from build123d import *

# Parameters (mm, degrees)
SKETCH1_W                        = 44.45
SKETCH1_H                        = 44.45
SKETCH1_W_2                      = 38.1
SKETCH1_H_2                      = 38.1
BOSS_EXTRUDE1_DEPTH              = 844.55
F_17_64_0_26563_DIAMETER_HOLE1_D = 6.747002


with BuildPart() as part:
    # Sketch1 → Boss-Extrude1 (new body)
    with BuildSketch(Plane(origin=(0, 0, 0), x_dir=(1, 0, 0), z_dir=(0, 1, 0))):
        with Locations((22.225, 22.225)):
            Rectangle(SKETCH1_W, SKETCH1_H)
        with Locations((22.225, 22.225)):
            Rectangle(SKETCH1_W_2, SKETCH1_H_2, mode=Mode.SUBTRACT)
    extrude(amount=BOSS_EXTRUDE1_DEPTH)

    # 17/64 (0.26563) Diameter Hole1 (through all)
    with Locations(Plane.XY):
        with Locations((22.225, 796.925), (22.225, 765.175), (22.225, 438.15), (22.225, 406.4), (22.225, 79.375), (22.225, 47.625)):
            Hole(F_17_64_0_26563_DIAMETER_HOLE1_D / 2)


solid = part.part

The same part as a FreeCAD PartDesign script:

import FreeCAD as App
import Part
import Sketcher
from FreeCAD import Vector
Q = App.Units.Quantity


def add_polygon(sketch, points):
    """Adds a closed chain of lines whose ends are joined by coincident constraints."""
    first, n = sketch.GeometryCount, len(points)
    for a, b in zip(points, points[1:] + points[:1]):
        sketch.addGeometry(Part.LineSegment(App.Vector(*a, 0), App.Vector(*b, 0)), False)
    for i in range(n):
        sketch.addConstraint(Sketcher.Constraint("Coincident", first + i, 2, first + (i + 1) % n, 1))

doc = App.newDocument("Part")
body = doc.addObject("PartDesign::Body", "Body")

# Sketch on XZ plane
sketch1 = body.newObject("Sketcher::SketchObject", "Sketch")
sketch1.AttachmentSupport = (doc.getObject("XZ_Plane"), [""])
sketch1.MapMode = "FlatFace"
add_polygon(sketch1, [(0, -44.45), (0, 0), (44.45, 0), (44.45, -44.45)])  # lines 0-3
add_polygon(sketch1, [(41.275, -3.175), (3.175, -3.175), (3.175, -41.275), (41.275, -41.275)])  # lines 4-7
sketch1.addConstraint([
    Sketcher.Constraint("Vertical", 0),
    Sketcher.Constraint("Horizontal", 1),
    Sketcher.Constraint("Vertical", 2),
    Sketcher.Constraint("Horizontal", 3),
    Sketcher.Constraint("Horizontal", 4),
    Sketcher.Constraint("Vertical", 5),
    Sketcher.Constraint("Horizontal", 6),
    Sketcher.Constraint("Vertical", 7),
    Sketcher.Constraint("Coincident", 0, 2, -1, 1),
    Sketcher.Constraint("Equal", 3, 0),
    Sketcher.Constraint("Equal", 6, 5),
    Sketcher.Constraint("DistanceX", 4, 2, 4, 1, Q("1.5 in")),
    Sketcher.Constraint("DistanceX", 1, 1, 1, 2, Q("1.75 in")),
    Sketcher.Constraint("DistanceX", -1, 1, 4, 2, Q("0.125 in")),
    Sketcher.Constraint("DistanceY", 4, 2, -1, 1, Q("0.125 in")),
])
pad1 = body.newObject("PartDesign::Pad", "Pad")
pad1.Profile = sketch1
pad1.Length = Q("33.25 in")
pad1.Reversed = True

# Sketch on XY plane
sketch2 = body.newObject("Sketcher::SketchObject", "Sketch001")
sketch2.AttachmentSupport = (doc.getObject("XY_Plane"), [""])
sketch2.MapMode = "FlatFace"
sketch2.addGeometry([
    Part.Circle(Vector(22.225, 796.925, 0), Vector(0, 0, 1), 3.373501),  # 0
    Part.Circle(Vector(22.225, 765.175, 0), Vector(0, 0, 1), 3.373501),  # 1
    Part.Circle(Vector(22.225, 438.15, 0), Vector(0, 0, 1), 3.373501),  # 2
    Part.Circle(Vector(22.225, 406.4, 0), Vector(0, 0, 1), 3.373501),  # 3
    Part.Circle(Vector(22.225, 79.375, 0), Vector(0, 0, 1), 3.373501),  # 4
    Part.Circle(Vector(22.225, 47.625, 0), Vector(0, 0, 1), 3.373501),  # 5
], False)
sketch2.addConstraint([
    Sketcher.Constraint("Equal", 0, 1),
    Sketcher.Constraint("Equal", 1, 2),
    Sketcher.Constraint("Equal", 2, 3),
    Sketcher.Constraint("Equal", 3, 4),
    Sketcher.Constraint("Equal", 4, 5),
    Sketcher.Constraint("Vertical", 0, 3, 1, 3),
    Sketcher.Constraint("Vertical", 1, 3, 2, 3),
    Sketcher.Constraint("Vertical", 2, 3, 3, 3),
    Sketcher.Constraint("Vertical", 3, 3, 4, 3),
    Sketcher.Constraint("Vertical", 4, 3, 5, 3),
    Sketcher.Constraint("DistanceY", -1, 1, 3, 3, Q("16 in")),
    Sketcher.Constraint("DistanceY", 4, 3, 1, 3, Q("27 in")),
    Sketcher.Constraint("DistanceY", 5, 3, 0, 3, Q("29.5 in")),
    Sketcher.Constraint("DistanceY", -1, 1, 2, 3, Q("17.25 in")),
    Sketcher.Constraint("DistanceY", 1, 3, 0, 3, Q("1.25 in")),
    Sketcher.Constraint("DistanceX", -1, 1, 0, 3, Q("0.875 in")),
    Sketcher.Constraint("DistanceY", -1, 1, 0, 3, Q("31.375 in")),
    Sketcher.Constraint("Diameter", 0, Q("6.747002 mm")),
])
doc.recompute()
hole = body.newObject("PartDesign::Hole", "Hole")
hole.Profile = sketch2
hole.ThreadType = "None"
hole.Diameter = 6.747002
hole.DepthType = "ThroughAll"

doc.recompute()
